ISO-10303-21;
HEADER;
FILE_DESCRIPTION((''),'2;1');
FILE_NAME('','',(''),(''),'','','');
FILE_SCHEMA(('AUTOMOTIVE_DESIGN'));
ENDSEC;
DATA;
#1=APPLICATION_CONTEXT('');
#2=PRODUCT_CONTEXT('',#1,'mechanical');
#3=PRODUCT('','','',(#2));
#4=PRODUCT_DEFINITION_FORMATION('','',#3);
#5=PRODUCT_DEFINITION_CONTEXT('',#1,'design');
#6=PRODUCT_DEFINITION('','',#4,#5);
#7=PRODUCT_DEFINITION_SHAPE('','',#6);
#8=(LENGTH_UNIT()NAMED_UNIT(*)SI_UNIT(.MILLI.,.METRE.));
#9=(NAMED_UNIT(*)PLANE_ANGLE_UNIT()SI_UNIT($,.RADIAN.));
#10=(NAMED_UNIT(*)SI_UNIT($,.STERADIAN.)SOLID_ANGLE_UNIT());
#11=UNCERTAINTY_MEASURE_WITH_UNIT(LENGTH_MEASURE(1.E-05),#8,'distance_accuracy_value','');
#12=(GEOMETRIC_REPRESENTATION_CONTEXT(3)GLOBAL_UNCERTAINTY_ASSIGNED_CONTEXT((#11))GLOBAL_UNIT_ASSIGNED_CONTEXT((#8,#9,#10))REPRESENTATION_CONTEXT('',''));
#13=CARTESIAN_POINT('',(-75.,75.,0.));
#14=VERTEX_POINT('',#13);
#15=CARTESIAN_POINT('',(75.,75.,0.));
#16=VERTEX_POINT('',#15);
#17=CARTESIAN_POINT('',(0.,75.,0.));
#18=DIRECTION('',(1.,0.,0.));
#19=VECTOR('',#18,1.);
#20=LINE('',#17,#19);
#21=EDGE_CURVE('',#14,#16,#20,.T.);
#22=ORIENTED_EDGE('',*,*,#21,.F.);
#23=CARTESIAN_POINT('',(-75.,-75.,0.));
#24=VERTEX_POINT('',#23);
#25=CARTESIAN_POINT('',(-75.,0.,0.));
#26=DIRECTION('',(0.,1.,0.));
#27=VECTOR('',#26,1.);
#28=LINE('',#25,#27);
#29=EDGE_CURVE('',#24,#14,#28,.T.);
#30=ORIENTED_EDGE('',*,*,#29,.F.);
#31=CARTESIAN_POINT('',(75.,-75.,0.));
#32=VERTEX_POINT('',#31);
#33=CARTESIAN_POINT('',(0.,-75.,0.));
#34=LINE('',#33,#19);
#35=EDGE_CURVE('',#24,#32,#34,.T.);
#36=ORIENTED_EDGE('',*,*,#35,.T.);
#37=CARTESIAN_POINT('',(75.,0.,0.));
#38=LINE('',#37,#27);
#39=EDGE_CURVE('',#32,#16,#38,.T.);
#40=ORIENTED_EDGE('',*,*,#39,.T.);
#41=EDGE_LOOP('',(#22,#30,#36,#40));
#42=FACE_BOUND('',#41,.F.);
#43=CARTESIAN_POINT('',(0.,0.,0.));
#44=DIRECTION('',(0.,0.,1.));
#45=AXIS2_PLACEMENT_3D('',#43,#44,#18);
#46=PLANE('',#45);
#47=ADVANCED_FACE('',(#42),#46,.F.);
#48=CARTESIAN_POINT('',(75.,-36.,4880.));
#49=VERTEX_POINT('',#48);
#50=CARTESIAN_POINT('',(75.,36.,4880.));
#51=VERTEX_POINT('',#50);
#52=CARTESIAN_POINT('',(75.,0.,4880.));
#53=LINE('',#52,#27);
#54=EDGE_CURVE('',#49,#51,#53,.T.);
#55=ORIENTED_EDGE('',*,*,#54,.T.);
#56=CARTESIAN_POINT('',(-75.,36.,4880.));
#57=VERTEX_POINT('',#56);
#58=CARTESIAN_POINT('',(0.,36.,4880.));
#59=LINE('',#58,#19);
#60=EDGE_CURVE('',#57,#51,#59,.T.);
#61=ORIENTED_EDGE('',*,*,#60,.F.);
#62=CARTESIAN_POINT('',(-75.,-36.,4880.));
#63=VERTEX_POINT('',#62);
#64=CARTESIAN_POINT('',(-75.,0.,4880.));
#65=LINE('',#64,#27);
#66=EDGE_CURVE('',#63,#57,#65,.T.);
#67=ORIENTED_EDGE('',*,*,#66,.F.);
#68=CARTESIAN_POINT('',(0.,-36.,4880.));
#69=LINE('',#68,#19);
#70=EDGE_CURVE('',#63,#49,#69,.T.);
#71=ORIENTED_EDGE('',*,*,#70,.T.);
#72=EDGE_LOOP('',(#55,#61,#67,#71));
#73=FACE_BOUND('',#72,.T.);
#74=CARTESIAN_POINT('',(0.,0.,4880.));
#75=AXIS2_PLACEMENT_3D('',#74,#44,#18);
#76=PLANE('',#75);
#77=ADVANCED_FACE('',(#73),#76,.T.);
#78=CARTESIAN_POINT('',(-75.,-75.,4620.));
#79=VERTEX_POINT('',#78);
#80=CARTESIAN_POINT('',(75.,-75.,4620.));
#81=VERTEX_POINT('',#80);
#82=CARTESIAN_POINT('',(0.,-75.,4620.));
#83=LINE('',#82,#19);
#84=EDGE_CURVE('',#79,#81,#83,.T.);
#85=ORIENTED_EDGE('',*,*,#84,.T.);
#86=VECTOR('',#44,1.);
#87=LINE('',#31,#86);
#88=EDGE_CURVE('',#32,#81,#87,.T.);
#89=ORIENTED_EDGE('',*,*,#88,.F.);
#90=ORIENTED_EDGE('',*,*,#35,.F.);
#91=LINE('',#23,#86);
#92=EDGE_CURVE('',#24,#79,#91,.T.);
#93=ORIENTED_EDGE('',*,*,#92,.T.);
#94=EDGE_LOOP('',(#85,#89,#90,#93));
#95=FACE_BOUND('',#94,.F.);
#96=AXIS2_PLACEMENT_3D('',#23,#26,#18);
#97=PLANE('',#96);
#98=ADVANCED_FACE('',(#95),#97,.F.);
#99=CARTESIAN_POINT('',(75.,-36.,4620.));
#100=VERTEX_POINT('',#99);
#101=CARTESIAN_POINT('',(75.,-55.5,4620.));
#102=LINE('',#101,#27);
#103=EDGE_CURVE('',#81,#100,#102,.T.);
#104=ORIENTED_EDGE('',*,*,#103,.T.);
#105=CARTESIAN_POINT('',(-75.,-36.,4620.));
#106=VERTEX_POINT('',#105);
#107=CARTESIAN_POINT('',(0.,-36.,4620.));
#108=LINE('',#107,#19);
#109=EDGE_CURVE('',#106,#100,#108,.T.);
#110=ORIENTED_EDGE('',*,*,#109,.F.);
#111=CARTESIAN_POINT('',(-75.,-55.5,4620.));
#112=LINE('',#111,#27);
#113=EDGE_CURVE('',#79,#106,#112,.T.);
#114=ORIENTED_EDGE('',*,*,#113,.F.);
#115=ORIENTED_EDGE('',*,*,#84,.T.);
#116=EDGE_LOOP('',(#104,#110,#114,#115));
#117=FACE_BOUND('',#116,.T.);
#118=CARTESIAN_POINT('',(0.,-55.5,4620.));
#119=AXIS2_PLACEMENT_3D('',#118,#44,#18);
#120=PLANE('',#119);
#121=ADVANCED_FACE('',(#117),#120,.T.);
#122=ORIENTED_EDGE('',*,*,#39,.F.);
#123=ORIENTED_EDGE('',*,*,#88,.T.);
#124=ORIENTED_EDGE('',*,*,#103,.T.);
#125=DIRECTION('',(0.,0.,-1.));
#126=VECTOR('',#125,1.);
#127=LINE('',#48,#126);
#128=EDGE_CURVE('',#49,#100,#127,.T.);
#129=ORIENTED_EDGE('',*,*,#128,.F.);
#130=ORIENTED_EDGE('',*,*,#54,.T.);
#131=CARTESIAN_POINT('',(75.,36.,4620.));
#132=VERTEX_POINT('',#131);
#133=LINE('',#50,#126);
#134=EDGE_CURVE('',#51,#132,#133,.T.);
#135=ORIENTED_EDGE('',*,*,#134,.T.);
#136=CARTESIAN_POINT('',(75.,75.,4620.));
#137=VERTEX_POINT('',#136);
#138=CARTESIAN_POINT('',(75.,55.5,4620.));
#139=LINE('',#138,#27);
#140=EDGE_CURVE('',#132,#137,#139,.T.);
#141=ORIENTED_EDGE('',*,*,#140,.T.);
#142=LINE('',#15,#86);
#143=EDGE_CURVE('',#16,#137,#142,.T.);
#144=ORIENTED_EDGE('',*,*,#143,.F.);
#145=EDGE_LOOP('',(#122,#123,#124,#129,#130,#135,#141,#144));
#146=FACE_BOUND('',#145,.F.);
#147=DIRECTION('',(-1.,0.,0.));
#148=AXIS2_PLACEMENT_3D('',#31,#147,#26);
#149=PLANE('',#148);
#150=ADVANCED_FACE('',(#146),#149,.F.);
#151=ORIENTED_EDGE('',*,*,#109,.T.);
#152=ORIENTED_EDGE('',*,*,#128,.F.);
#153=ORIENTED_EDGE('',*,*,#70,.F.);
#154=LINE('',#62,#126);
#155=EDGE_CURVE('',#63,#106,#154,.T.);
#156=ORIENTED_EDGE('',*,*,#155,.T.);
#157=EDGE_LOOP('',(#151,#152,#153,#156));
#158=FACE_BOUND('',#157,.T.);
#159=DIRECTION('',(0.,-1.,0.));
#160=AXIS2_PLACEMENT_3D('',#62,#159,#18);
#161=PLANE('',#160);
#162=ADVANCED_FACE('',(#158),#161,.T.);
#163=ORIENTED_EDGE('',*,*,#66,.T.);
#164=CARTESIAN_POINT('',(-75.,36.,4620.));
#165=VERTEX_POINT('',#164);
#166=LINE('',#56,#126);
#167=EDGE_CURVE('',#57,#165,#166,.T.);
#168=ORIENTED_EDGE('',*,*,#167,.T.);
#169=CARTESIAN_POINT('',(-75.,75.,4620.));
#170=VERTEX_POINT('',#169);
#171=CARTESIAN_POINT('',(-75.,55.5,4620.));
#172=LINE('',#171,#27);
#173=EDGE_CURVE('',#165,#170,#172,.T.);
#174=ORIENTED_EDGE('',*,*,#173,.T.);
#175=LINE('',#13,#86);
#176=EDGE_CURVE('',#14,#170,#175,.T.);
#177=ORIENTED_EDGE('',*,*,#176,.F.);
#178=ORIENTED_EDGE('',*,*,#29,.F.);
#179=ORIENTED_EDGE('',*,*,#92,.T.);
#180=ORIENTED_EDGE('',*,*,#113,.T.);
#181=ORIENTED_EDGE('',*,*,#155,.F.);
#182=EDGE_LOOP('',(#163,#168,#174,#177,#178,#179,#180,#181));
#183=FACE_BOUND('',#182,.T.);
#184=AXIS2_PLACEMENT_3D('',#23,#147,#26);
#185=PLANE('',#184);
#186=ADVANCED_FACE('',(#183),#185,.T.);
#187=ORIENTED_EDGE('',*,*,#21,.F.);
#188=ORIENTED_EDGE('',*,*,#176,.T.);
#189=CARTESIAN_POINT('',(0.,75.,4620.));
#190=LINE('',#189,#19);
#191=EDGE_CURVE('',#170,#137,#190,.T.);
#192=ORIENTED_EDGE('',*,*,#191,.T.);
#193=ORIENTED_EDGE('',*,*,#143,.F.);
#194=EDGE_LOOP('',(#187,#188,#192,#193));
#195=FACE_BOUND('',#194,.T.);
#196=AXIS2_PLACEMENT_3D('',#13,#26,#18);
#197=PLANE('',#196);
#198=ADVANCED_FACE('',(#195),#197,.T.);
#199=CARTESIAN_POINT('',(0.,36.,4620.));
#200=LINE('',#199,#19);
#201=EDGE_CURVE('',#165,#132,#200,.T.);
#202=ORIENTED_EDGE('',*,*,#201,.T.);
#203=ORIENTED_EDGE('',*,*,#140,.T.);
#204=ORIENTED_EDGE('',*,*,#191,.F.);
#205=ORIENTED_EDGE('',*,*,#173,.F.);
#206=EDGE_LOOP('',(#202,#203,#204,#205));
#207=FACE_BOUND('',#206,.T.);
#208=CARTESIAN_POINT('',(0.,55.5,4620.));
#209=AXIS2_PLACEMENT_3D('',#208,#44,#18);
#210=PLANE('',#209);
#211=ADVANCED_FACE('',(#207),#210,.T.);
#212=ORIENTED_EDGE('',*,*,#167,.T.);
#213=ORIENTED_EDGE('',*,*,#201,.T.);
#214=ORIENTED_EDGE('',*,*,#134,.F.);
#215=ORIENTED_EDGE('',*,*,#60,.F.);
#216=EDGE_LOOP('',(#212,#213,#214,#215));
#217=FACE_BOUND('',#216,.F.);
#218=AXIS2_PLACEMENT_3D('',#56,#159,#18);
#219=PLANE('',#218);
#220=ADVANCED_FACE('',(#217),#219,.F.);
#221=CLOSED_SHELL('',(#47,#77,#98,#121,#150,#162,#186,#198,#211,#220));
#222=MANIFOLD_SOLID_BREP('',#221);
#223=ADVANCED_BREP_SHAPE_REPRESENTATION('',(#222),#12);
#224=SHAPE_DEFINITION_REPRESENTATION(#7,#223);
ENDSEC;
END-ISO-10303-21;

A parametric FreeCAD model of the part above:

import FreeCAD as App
import Part
import Sketcher

V = App.Vector

doc = App.newDocument("Part")
params = doc.addObject("Spreadsheet::Sheet", "Params")
for row, (alias, value) in enumerate([
    ("sketch1_width", "150 mm"),
    ("pad1_length", "4880 mm"),
    ("sketch2_width", "150 mm"),
    ("sketch2_height", "39 mm"),
    ("pocket1_length", "260 mm"),
    ("sketch3_width", "150 mm"),
    ("sketch3_height", "39 mm"),
    ("pocket2_length", "260 mm"),
], start=1):
    params.set(f"A{row}", alias)
    params.set(f"B{row}", "=" + value)
    params.setAlias(f"B{row}", alias)

body = doc.addObject("PartDesign::Body", "Body")

# Sketch on XY plane
sketch1 = doc.addObject("Sketcher::SketchObject", "Sketch")
body.addObject(sketch1)
sketch1.AttachmentSupport = (doc.XY_Plane, [""])
sketch1.MapMode = "FlatFace"
sketch1.addGeometry([
    Part.LineSegment(V(-75, 75, 0), V(-75, -75, 0)),
    Part.LineSegment(V(-75, -75, 0), V(75, -75, 0)),
    Part.LineSegment(V(75, -75, 0), V(75, 75, 0)),
    Part.LineSegment(V(75, 75, 0), V(-75, 75, 0)),
], False)
sketch1.addConstraint([
    Sketcher.Constraint("Coincident", 0, 2, 1, 1),
    Sketcher.Constraint("Coincident", 1, 2, 2, 1),
    Sketcher.Constraint("Coincident", 2, 2, 3, 1),
    Sketcher.Constraint("Coincident", 3, 2, 0, 1),
    Sketcher.Constraint("Vertical", 0),
    Sketcher.Constraint("Horizontal", 1),
    Sketcher.Constraint("Vertical", 2),
    Sketcher.Constraint("Horizontal", 3),
    Sketcher.Constraint("Symmetric", 0, 2, 2, 2, -1, 1),
    Sketcher.Constraint("Equal", 3, 0),
    Sketcher.Constraint("DistanceX", 1, 1, 1, 2, 150.0),
])
sketch1.setExpression("Constraints[10]", "Params.sketch1_width")
pad1 = doc.addObject("PartDesign::Pad", "Pad")
body.addObject(pad1)
pad1.Profile = sketch1
pad1.setExpression("Length", "Params.pad1_length")

# Sketch on XY plane
sketch2 = doc.addObject("Sketcher::SketchObject", "Sketch001")
body.addObject(sketch2)
sketch2.AttachmentSupport = (doc.XY_Plane, [""])
sketch2.MapMode = "FlatFace"
sketch2.AttachmentOffset = App.Placement(V(0, 0, 4880), App.Rotation())
sketch2.addGeometry([
    Part.LineSegment(V(-75, 75, 0), V(-75, 36, 0)),  # 0
    Part.LineSegment(V(-75, 36, 0), V(75, 36, 0)),  # 1
    Part.LineSegment(V(75, 36, 0), V(75, 75, 0)),  # 2
    Part.LineSegment(V(75, 75, 0), V(-75, 75, 0)),  # 3
    Part.LineSegment(V(-75, -36, 0), V(-75, -75, 0)),  # 4
    Part.LineSegment(V(-75, -75, 0), V(75, -75, 0)),  # 5
    Part.LineSegment(V(75, -75, 0), V(75, -36, 0)),  # 6
    Part.LineSegment(V(75, -36, 0), V(-75, -36, 0)),  # 7
], False)
sketch2.addConstraint([
    Sketcher.Constraint("Coincident", 0, 2, 1, 1),
    Sketcher.Constraint("Coincident", 1, 2, 2, 1),
    Sketcher.Constraint("Coincident", 2, 2, 3, 1),
    Sketcher.Constraint("Coincident", 3, 2, 0, 1),
    Sketcher.Constraint("Coincident", 4, 2, 5, 1),
    Sketcher.Constraint("Coincident", 5, 2, 6, 1),
    Sketcher.Constraint("Coincident", 6, 2, 7, 1),
    Sketcher.Constraint("Coincident", 7, 2, 4, 1),
    Sketcher.Constraint("Vertical", 0),
    Sketcher.Constraint("Horizontal", 1),
    Sketcher.Constraint("Vertical", 2),
    Sketcher.Constraint("Horizontal", 3),
    Sketcher.Constraint("Vertical", 4),
    Sketcher.Constraint("Horizontal", 5),
    Sketcher.Constraint("Vertical", 6),
    Sketcher.Constraint("Horizontal", 7),
    Sketcher.Constraint("Symmetric", 2, 2, 4, 2, -1, 1),
    Sketcher.Constraint("Symmetric", 0, 2, 6, 2, -1, 1),
    Sketcher.Constraint("Vertical", 3, 2, 4, 2),
    Sketcher.Constraint("DistanceX", 1, 1, 1, 2, 150.0),
    Sketcher.Constraint("DistanceY", 0, 2, 0, 1, 39.0),
    Sketcher.Constraint("DistanceY", -1, 1, 0, 2, 36.0),
])
sketch2.setExpression("Constraints[19]", "Params.sketch2_width")
sketch2.setExpression("Constraints[20]", "Params.sketch2_height")
pocket1 = doc.addObject("PartDesign::Pocket", "Pocket")
body.addObject(pocket1)
pocket1.Profile = sketch2
pocket1.setExpression("Length", "Params.pocket1_length")

# Sketch on XY plane
sketch3 = doc.addObject("Sketcher::SketchObject", "Sketch002")
body.addObject(sketch3)
sketch3.AttachmentSupport = (doc.XY_Plane, [""])
sketch3.MapMode = "FlatFace"
sketch3.AttachmentOffset = App.Placement(V(0, 0, 4880), App.Rotation())
sketch3.addGeometry([
    Part.LineSegment(V(-75, 75, 0), V(-75, 36, 0)),
    Part.LineSegment(V(-75, 36, 0), V(75, 36, 0)),
    Part.LineSegment(V(75, 36, 0), V(75, 75, 0)),
    Part.LineSegment(V(75, 75, 0), V(-75, 75, 0)),
], False)
sketch3.addConstraint([
    Sketcher.Constraint("Coincident", 0, 2, 1, 1),
    Sketcher.Constraint("Coincident", 1, 2, 2, 1),
    Sketcher.Constraint("Coincident", 2, 2, 3, 1),
    Sketcher.Constraint("Coincident", 3, 2, 0, 1),
    Sketcher.Constraint("Vertical", 0),
    Sketcher.Constraint("Horizontal", 1),
    Sketcher.Constraint("Vertical", 2),
    Sketcher.Constraint("Horizontal", 3),
    Sketcher.Constraint("DistanceX", 1, 1, 1, 2, 150.0),
    Sketcher.Constraint("DistanceY", 0, 2, 0, 1, 39.0),
    Sketcher.Constraint("DistanceX", 0, 2, -1, 1, 75.0),
    Sketcher.Constraint("DistanceY", -1, 1, 0, 2, 36.0),
])
sketch3.setExpression("Constraints[8]", "Params.sketch3_width")
sketch3.setExpression("Constraints[9]", "Params.sketch3_height")
pocket2 = doc.addObject("PartDesign::Pocket", "Pocket001")
body.addObject(pocket2)
pocket2.Profile = sketch3
pocket2.setExpression("Length", "Params.pocket2_length")

doc.recompute()
